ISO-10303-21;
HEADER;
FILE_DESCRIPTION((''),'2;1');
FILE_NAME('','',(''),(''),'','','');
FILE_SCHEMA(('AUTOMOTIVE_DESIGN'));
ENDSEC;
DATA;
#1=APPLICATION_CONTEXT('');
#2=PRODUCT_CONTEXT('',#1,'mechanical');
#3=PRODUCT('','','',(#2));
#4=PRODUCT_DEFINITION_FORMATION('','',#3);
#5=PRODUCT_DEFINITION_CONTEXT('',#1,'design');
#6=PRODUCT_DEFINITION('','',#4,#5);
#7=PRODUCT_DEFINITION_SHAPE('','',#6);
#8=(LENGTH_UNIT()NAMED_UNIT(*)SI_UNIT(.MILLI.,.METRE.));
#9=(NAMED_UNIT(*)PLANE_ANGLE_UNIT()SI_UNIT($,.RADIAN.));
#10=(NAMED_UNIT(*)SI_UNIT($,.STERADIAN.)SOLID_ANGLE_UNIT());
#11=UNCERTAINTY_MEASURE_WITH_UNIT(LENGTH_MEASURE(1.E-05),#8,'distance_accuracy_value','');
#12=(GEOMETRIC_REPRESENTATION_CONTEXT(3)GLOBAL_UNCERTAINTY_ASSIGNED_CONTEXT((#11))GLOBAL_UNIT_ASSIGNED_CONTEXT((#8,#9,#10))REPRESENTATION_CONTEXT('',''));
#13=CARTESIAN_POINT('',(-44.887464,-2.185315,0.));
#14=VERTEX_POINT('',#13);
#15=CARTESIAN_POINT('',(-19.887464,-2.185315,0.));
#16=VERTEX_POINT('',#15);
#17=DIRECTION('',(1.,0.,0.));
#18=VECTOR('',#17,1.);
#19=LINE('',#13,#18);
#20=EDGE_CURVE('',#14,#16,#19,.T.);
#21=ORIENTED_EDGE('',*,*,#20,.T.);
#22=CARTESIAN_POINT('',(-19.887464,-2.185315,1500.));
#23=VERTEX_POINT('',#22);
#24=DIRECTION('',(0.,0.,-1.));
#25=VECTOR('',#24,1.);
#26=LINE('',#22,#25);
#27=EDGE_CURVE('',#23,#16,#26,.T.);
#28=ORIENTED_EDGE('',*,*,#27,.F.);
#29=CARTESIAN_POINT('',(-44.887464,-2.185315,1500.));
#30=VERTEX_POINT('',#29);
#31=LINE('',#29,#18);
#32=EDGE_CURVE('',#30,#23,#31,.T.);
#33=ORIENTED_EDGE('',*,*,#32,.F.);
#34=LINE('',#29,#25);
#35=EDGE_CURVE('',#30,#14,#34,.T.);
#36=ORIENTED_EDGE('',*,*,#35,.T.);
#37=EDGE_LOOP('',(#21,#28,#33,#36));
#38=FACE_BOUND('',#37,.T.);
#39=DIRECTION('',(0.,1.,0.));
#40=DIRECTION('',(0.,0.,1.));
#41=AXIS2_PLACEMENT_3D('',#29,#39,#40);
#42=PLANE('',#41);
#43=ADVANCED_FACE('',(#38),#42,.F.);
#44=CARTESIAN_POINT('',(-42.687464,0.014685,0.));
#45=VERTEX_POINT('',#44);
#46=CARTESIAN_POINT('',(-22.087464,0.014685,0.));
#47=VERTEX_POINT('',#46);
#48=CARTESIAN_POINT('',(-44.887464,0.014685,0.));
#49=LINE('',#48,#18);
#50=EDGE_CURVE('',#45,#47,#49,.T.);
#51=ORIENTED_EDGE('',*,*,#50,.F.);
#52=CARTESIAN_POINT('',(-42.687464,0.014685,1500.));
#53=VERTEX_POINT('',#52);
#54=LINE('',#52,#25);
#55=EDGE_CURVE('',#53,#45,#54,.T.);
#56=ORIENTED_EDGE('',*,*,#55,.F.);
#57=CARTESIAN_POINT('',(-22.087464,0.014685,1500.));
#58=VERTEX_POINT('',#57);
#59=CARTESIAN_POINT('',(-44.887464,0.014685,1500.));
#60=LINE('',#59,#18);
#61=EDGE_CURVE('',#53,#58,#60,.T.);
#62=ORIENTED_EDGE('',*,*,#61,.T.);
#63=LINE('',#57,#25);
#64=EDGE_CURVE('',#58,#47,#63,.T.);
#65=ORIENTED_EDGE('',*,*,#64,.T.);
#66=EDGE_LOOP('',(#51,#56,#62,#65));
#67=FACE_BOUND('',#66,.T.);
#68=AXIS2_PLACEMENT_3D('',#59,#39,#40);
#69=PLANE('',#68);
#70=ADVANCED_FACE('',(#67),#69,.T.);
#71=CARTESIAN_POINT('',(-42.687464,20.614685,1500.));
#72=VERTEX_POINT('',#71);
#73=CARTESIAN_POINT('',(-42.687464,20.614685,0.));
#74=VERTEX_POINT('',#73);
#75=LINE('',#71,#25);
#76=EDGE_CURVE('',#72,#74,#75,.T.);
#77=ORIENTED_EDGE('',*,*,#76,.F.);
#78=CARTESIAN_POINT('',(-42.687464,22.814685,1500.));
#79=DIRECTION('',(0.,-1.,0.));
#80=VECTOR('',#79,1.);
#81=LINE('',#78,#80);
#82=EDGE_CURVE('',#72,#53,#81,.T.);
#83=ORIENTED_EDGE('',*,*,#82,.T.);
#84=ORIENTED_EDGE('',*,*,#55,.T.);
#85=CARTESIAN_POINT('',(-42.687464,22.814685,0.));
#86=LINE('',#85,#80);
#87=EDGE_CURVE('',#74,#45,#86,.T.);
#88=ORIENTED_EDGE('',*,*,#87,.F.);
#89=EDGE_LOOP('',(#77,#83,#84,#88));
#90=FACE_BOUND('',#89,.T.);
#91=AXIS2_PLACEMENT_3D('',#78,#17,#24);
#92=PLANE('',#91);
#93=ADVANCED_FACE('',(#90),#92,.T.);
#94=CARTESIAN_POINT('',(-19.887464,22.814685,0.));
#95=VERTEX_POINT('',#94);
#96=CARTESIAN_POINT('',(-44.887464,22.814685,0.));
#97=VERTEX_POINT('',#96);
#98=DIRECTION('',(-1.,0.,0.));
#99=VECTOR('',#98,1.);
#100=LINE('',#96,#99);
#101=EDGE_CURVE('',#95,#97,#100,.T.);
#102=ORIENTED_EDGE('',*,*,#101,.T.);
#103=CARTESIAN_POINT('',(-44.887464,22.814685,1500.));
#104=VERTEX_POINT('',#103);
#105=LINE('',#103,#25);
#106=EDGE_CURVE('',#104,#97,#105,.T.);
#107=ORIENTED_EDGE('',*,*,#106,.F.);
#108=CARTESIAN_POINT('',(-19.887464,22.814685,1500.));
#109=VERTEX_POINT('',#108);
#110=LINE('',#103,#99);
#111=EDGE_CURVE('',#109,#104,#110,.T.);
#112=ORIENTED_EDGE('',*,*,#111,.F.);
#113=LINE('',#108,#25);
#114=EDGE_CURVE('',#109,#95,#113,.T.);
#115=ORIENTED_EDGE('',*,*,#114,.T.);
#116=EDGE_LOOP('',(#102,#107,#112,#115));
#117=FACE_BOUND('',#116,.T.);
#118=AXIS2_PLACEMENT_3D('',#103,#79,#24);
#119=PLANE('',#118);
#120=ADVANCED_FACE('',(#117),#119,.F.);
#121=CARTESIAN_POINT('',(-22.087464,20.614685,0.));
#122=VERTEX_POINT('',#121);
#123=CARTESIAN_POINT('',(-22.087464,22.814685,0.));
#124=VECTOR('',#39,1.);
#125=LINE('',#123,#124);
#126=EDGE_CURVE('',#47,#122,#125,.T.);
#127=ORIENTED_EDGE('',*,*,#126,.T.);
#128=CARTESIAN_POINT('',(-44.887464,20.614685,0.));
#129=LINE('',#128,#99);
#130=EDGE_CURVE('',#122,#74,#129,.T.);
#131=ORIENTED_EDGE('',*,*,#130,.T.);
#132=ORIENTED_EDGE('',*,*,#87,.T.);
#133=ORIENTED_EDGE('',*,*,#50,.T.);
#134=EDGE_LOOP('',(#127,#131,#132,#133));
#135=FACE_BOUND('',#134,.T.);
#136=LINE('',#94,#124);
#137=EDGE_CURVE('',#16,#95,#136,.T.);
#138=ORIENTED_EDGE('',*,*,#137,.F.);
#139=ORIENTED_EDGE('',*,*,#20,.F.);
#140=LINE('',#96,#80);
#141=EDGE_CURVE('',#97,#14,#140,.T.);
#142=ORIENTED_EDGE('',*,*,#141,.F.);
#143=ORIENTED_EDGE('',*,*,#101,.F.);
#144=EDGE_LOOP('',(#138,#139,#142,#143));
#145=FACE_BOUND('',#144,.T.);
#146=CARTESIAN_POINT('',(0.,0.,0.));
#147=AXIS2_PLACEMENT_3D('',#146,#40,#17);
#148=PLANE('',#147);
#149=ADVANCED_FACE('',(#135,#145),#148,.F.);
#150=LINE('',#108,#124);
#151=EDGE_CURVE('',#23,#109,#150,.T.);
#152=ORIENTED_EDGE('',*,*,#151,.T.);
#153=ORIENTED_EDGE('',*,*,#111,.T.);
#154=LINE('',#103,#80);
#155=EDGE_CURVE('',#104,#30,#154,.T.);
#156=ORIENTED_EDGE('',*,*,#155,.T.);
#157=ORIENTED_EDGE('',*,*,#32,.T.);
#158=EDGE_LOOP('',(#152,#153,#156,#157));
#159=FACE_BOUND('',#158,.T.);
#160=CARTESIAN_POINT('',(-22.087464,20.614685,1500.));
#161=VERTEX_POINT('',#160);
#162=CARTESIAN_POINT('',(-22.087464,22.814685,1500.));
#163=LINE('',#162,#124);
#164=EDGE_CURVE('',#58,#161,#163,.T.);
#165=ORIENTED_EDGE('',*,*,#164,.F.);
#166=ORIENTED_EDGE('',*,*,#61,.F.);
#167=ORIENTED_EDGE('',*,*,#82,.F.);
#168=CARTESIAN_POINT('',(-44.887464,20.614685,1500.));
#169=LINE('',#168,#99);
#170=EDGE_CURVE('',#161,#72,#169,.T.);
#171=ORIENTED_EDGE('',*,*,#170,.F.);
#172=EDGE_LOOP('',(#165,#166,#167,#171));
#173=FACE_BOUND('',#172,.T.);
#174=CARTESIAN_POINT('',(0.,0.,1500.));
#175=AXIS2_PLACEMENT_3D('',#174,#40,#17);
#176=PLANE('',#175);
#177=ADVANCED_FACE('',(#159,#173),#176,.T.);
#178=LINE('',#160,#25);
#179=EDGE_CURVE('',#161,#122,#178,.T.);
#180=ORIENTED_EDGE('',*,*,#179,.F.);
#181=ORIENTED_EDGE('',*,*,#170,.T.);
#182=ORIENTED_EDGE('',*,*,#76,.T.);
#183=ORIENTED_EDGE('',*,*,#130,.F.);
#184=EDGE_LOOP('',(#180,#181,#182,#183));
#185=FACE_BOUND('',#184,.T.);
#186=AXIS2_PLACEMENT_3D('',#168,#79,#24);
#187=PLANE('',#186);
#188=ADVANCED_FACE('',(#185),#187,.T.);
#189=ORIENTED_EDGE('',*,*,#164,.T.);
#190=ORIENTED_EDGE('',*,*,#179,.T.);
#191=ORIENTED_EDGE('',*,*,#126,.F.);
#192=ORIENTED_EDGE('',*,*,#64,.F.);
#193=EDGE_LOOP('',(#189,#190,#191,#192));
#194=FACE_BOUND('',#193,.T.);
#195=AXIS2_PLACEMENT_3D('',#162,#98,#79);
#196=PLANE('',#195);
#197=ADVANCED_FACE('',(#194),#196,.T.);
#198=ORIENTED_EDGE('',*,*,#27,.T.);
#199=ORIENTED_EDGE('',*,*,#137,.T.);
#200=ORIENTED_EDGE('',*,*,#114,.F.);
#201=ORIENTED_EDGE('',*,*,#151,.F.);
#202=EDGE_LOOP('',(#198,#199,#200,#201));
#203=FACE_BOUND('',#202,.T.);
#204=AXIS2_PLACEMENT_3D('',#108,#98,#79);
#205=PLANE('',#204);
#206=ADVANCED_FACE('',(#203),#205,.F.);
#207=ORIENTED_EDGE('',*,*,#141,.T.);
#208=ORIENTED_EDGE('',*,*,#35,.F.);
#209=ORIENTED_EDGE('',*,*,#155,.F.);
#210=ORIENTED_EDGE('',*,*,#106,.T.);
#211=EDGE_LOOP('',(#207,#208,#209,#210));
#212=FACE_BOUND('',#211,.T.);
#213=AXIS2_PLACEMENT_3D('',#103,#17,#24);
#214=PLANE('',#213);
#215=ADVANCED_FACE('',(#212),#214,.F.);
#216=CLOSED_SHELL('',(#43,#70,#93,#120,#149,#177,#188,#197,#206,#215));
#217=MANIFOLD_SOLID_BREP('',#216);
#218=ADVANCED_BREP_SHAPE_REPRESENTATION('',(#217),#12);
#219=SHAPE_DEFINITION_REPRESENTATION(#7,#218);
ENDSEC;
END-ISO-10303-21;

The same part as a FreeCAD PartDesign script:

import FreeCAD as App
import Part
import Sketcher

doc = App.newDocument("Part")
body = doc.addObject("PartDesign::Body", "Body")

sketch1 = body.newObject("Sketcher::SketchObject", "Sketch")
sketch1.AttachmentSupport = (doc.getObject("XY_Plane"), [""])
sketch1.MapMode = "FlatFace"
sketch1.addGeometry([
    Part.LineSegment(App.Vector(-45, 23, 0), App.Vector(-45, -2, 0)),
    Part.LineSegment(App.Vector(-45, -2, 0), App.Vector(-20, -2, 0)),
    Part.LineSegment(App.Vector(-20, -2, 0), App.Vector(-20, 23, 0)),
    Part.LineSegment(App.Vector(-20, 23, 0), App.Vector(-45, 23, 0)),
    Part.LineSegment(App.Vector(-22, 0, 0), App.Vector(-43, 0, 0)),
    Part.LineSegment(App.Vector(-43, 0, 0), App.Vector(-43, 21, 0)),
    Part.LineSegment(App.Vector(-43, 21, 0), App.Vector(-22, 21, 0)),
    Part.LineSegment(App.Vector(-22, 21, 0), App.Vector(-22, 0, 0)),
], False)
sketch1.addConstraint([
    Sketcher.Constraint("Coincident", 0, 2, 1, 1),
    Sketcher.Constraint("Coincident", 1, 2, 2, 1),
    Sketcher.Constraint("Coincident", 2, 2, 3, 1),
    Sketcher.Constraint("Coincident", 3, 2, 0, 1),
    Sketcher.Constraint("Coincident", 4, 2, 5, 1),
    Sketcher.Constraint("Coincident", 5, 2, 6, 1),
    Sketcher.Constraint("Coincident", 6, 2, 7, 1),
    Sketcher.Constraint("Coincident", 7, 2, 4, 1),
    Sketcher.Constraint("Vertical", 0),
    Sketcher.Constraint("Horizontal", 1),
    Sketcher.Constraint("Vertical", 2),
    Sketcher.Constraint("Horizontal", 3),
    Sketcher.Constraint("Horizontal", 4),
    Sketcher.Constraint("Vertical", 5),
    Sketcher.Constraint("Horizontal", 6),
    Sketcher.Constraint("Vertical", 7),
    Sketcher.Constraint("Equal", 3, 0),
    Sketcher.Constraint("Equal", 6, 5),
    Sketcher.Constraint("DistanceX", 1, 1, 1, 2, 25.0),
    Sketcher.Constraint("DistanceX", 4, 2, 4, 1, 20.6),
    Sketcher.Constraint("DistanceX", 0, 2, 4, 2, 2.2),
    Sketcher.Constraint("DistanceY", 0, 2, 4, 2, 2.2),
    Sketcher.Constraint("DistanceX", 0, 2, -1, 1, 44.887464),
    Sketcher.Constraint("DistanceY", 0, 2, -1, 1, 2.185315),
])
pad1 = body.newObject("PartDesign::Pad", "Pad")
pad1.Profile = sketch1
pad1.Length = 1500

doc.recompute()
